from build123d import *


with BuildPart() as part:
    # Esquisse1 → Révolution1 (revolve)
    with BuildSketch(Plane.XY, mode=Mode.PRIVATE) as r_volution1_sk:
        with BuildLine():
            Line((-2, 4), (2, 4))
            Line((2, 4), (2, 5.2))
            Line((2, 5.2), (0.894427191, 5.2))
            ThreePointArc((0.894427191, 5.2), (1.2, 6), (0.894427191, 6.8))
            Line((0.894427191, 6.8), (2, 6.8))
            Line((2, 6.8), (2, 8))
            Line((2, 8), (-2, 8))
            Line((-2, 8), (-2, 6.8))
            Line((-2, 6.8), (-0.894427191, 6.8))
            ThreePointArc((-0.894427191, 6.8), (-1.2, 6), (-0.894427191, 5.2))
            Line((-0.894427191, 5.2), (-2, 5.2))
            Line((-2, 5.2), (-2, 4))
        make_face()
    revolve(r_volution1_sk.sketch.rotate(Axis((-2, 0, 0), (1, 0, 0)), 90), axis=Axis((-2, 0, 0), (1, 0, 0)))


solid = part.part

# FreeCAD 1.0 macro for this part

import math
import FreeCAD as App
import Part
import Sketcher
from FreeCAD import Vector
Q = App.Units.Quantity

doc = App.newDocument("Part")
params = doc.addObject("Spreadsheet::Sheet", "Params")
for row, (alias, value) in enumerate([
    ("sketch1_radius", "1.2 mm"),
    ("sketch1_width", "4 mm"),
    ("sketch1_height", "1.2 mm"),
    ("revolution_angle", "360 deg"),
], start=1):
    params.set(f"A{row}", alias)
    params.set(f"B{row}", "=" + value)
    params.setAlias(f"B{row}", alias)

body = doc.addObject("PartDesign::Body", "Body")

sketch1 = body.newObject("Sketcher::SketchObject", "Sketch")
sketch1.AttachmentSupport = (doc.getObject("XY_Plane"), [""])
sketch1.MapMode = "FlatFace"
sketch1.addGeometry([
    Part.LineSegment(Vector(-2, 4, 0), Vector(2, 4, 0)),
    Part.LineSegment(Vector(2, 4, 0), Vector(2, 5.2, 0)),
    Part.LineSegment(Vector(2, 5.2, 0), Vector(0.9, 5.2, 0)),
    Part.ArcOfCircle(Part.Circle(Vector(0, 6, 0), Vector(0, 0, 1), 1.2), math.radians(-42), math.radians(42)),
    Part.LineSegment(Vector(0.9, 6.8, 0), Vector(2, 6.8, 0)),
    Part.LineSegment(Vector(2, 6.8, 0), Vector(2, 8, 0)),
    Part.LineSegment(Vector(2, 8, 0), Vector(-2, 8, 0)),
    Part.LineSegment(Vector(-2, 8, 0), Vector(-2, 6.8, 0)),
    Part.LineSegment(Vector(-2, 6.8, 0), Vector(-0.9, 6.8, 0)),
    Part.ArcOfCircle(Part.Circle(Vector(0, 6, 0), Vector(0, 0, 1), 1.2), math.radians(138), math.radians(222)),
    Part.LineSegment(Vector(-0.9, 5.2, 0), Vector(-2, 5.2, 0)),
    Part.LineSegment(Vector(-2, 5.2, 0), Vector(-2, 4, 0)),
], False)
sketch1.addConstraint([
    Sketcher.Constraint("Coincident", 0, 2, 1, 1),
    Sketcher.Constraint("Coincident", 1, 2, 2, 1),
    Sketcher.Constraint("Coincident", 2, 2, 3, 1),
    Sketcher.Constraint("Coincident", 3, 2, 4, 1),
    Sketcher.Constraint("Coincident", 4, 2, 5, 1),
    Sketcher.Constraint("Coincident", 5, 2, 6, 1),
    Sketcher.Constraint("Coincident", 6, 2, 7, 1),
    Sketcher.Constraint("Coincident", 7, 2, 8, 1),
    Sketcher.Constraint("Coincident", 8, 2, 9, 1),
    Sketcher.Constraint("Coincident", 9, 2, 10, 1),
    Sketcher.Constraint("Coincident", 10, 2, 11, 1),
    Sketcher.Constraint("Coincident", 11, 2, 0, 1),
    Sketcher.Constraint("Horizontal", 0),
    Sketcher.Constraint("Vertical", 1),
    Sketcher.Constraint("Horizontal", 2),
    Sketcher.Constraint("Horizontal", 4),
    Sketcher.Constraint("Vertical", 5),
    Sketcher.Constraint("Horizontal", 6),
    Sketcher.Constraint("Vertical", 7),
    Sketcher.Constraint("Horizontal", 8),
    Sketcher.Constraint("Horizontal", 10),
    Sketcher.Constraint("Vertical", 11),
    Sketcher.Constraint("Coincident", 9, 3, 3, 3),
    Sketcher.Constraint("Equal", 3, 9),
    Sketcher.Constraint("Symmetric", 4, 2, 7, 2, -2),
    Sketcher.Constraint("Symmetric", 2, 2, 9, 2, -2),
    Sketcher.Constraint("Vertical", 2, 2, 3, 2),
    Sketcher.Constraint("Vertical", 1, 2, 4, 2),
    Sketcher.Constraint("Vertical", 7, 2, 10, 2),
    Sketcher.Constraint("Equal", 1, 5),
    Sketcher.Constraint("Radius", 3, Q("1.2 mm")),
    Sketcher.Constraint("DistanceX", 0, 1, 0, 2, Q("4 mm")),
    Sketcher.Constraint("DistanceY", 1, 1, 1, 2, Q("1.2 mm")),
    Sketcher.Constraint("DistanceY", -1, 1, 3, 3, Q("6 mm")),
    Sketcher.Constraint("DistanceY", -1, 1, 0, 2, Q("4 mm")),
])
sketch1.setExpression("Constraints[30]", "Params.sketch1_radius")
sketch1.setExpression("Constraints[31]", "Params.sketch1_width")
sketch1.setExpression("Constraints[32]", "Params.sketch1_height")
revolution = body.newObject("PartDesign::Revolution", "Revolution")
revolution.Profile = sketch1
revolution.ReferenceAxis = (sketch1, ["H_Axis"])
revolution.setExpression("Angle", "Params.revolution_angle")

doc.recompute()
